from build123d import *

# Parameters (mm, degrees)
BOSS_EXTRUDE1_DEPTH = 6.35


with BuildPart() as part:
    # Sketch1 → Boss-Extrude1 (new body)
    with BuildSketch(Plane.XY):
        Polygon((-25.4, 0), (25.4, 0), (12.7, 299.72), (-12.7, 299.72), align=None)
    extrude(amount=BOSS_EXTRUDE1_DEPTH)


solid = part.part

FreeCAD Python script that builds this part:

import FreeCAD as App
import Part
import Sketcher

V = App.Vector
Q = App.Units.Quantity

doc = App.newDocument("Part")
body = doc.addObject("PartDesign::Body", "Body")

# Sketch on XY plane
sketch1 = body.newObject("Sketcher::SketchObject", "Sketch")
sketch1.AttachmentSupport = (doc.getObject("XY_Plane"), [""])
sketch1.MapMode = "FlatFace"
sketch1.addGeometry([
    Part.LineSegment(V(-25, 0, 0), V(25, 0, 0)),
    Part.LineSegment(V(25, 0, 0), V(13, 300, 0)),
    Part.LineSegment(V(13, 300, 0), V(-13, 300, 0)),
    Part.LineSegment(V(-13, 300, 0), V(-25, 0, 0)),
], False)
sketch1.addConstraint([
    Sketcher.Constraint("Coincident", 0, 2, 1, 1),
    Sketcher.Constraint("Coincident", 1, 2, 2, 1),
    Sketcher.Constraint("Coincident", 2, 2, 3, 1),
    Sketcher.Constraint("Coincident", 3, 2, 0, 1),
    Sketcher.Constraint("Horizontal", 0),
    Sketcher.Constraint("Horizontal", 2),
    Sketcher.Constraint("Symmetric", 0, 2, 3, 2, -1, 1),
    Sketcher.Constraint("Equal", 1, 3),
    Sketcher.Constraint("DistanceX", 0, 1, 0, 2, Q("2 in")),
    Sketcher.Constraint("DistanceX", 2, 2, 2, 1, Q("1 in")),
    Sketcher.Constraint("DistanceY", -1, 1, 1, 2, Q("11.8 in")),
])
pad1 = body.newObject("PartDesign::Pad", "Pad")
pad1.Profile = sketch1
pad1.Length = Q("0.25 in")

doc.recompute()
